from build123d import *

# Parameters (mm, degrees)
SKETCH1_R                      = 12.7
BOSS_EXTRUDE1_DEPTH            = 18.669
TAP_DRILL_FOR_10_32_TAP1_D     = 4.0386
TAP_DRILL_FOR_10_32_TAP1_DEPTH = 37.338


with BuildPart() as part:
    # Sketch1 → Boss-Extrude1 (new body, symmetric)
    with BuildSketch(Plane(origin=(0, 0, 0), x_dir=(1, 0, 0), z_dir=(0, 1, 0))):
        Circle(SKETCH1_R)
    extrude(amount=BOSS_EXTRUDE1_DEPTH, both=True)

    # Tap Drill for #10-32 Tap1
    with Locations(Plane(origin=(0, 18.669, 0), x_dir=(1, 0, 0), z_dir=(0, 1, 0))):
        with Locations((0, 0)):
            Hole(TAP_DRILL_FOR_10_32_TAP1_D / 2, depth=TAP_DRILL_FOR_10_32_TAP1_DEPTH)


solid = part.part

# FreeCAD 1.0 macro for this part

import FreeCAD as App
import Part
import Sketcher
Q = App.Units.Quantity

doc = App.newDocument("Part")
body = doc.addObject("PartDesign::Body", "Body")

# Sketch on XZ plane
sketch1 = doc.addObject("Sketcher::SketchObject", "Sketch")
body.addObject(sketch1)
sketch1.AttachmentSupport = (doc.XZ_Plane, [""])
sketch1.MapMode = "FlatFace"
sketch1.addGeometry(Part.Circle(App.Vector(0, 0, 0), App.Vector(0, 0, 1), 13), False)
sketch1.addConstraint(Sketcher.Constraint("Coincident", 0, 3, -1, 1))
sketch1.addConstraint(Sketcher.Constraint("Diameter", 0, Q("1 in")))
pad1 = doc.addObject("PartDesign::Pad", "Pad")
body.addObject(pad1)
pad1.Profile = sketch1
pad1.Length = Q("1.47 in")
pad1.Midplane = True

# Sketch on XZ plane
sketch2 = doc.addObject("Sketcher::SketchObject", "Sketch001")
body.addObject(sketch2)
sketch2.AttachmentSupport = (doc.XZ_Plane, [""])
sketch2.MapMode = "FlatFace"
sketch2.AttachmentOffset = App.Placement(App.Vector(0, 0, -0.735 * 25.4), App.Rotation())
sketch2.addGeometry(Part.Circle(App.Vector(0, 0, 0), App.Vector(0, 0, 1), 2), False)
sketch2.addConstraint(Sketcher.Constraint("Coincident", 0, 3, -1, 1))
sketch2.addConstraint(Sketcher.Constraint("Diameter", 0, Q("0.159 in")))
doc.recompute()
hole = doc.addObject("PartDesign::Hole", "Hole")
body.addObject(hole)
hole.Profile = sketch2
hole.ThreadType = "None"
hole.Diameter = Q("0.159 in")
hole.DepthType = "Dimension"
hole.Depth = Q("1.47 in")
hole.DrillPoint = "Flat"
hole.Reversed = True

doc.recompute()
